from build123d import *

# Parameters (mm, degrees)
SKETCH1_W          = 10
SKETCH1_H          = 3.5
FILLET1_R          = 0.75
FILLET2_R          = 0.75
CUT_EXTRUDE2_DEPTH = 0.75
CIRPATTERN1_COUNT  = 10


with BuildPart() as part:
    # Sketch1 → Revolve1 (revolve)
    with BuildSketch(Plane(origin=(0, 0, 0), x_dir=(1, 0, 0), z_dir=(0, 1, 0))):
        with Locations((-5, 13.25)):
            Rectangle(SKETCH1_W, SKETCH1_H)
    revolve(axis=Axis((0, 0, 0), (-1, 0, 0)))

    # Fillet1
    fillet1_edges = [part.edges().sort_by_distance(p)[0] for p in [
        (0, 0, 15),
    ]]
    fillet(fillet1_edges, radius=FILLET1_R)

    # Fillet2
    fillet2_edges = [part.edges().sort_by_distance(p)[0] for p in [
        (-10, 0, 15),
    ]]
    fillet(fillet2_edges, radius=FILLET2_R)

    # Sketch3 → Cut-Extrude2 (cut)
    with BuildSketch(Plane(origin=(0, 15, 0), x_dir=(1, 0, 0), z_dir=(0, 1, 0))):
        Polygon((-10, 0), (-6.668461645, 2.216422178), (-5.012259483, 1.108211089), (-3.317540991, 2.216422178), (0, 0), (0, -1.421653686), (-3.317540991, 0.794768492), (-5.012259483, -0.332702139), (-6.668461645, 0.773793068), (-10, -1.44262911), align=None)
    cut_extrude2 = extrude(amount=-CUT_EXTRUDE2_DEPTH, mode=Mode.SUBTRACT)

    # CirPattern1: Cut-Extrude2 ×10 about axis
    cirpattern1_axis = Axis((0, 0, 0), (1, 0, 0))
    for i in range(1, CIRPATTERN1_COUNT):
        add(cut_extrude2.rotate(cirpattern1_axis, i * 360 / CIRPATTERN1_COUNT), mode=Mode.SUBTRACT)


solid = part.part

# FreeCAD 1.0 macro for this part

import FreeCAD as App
import Part
import Sketcher
from FreeCAD import Vector
Q = App.Units.Quantity


def edges_at(feature, points):
    """Names of the edges that pass closest to the given points."""
    edges = feature.Shape.Edges
    near = lambda p: min(range(len(edges)), key=lambda i: edges[i].distToShape(Part.Vertex(*p))[0])
    return sorted({f"Edge{near(p) + 1}" for p in points})


def add_polygon(sketch, points):
    """Adds a closed chain of lines whose ends are joined by coincident constraints."""
    first, n = sketch.GeometryCount, len(points)
    for a, b in zip(points, points[1:] + points[:1]):
        sketch.addGeometry(Part.LineSegment(App.Vector(*a, 0), App.Vector(*b, 0)), False)
    for i in range(n):
        sketch.addConstraint(Sketcher.Constraint("Coincident", first + i, 2, first + (i + 1) % n, 1))

doc = App.newDocument("Part")
body = doc.addObject("PartDesign::Body", "Body")

# Sketch on XZ plane
sketch1 = body.newObject("Sketcher::SketchObject", "Sketch")
sketch1.AttachmentSupport = (doc.getObject("XZ_Plane"), [""])
sketch1.MapMode = "FlatFace"
add_polygon(sketch1, [(-10, -15), (-10, -11.5), (0, -11.5), (0, -15)])  # lines 0-3
sketch1.addConstraint(Sketcher.Constraint("Vertical", 0))
sketch1.addConstraint(Sketcher.Constraint("Horizontal", 1))
sketch1.addConstraint(Sketcher.Constraint("Vertical", 2))
sketch1.addConstraint(Sketcher.Constraint("Horizontal", 3))
sketch1.addConstraint(Sketcher.Constraint("PointOnObject", 1, 2, -2))
sketch1.addConstraint(Sketcher.Constraint("DistanceX", 1, 1, 1, 2, Q("10 mm")))
sketch1.addConstraint(Sketcher.Constraint("DistanceY", 0, 1, 0, 2, Q("3.5 mm")))
sketch1.addConstraint(Sketcher.Constraint("DistanceY", 2, 2, -1, 1, Q("15 mm")))
revolution = body.newObject("PartDesign::Revolution", "Revolution")
revolution.Profile = sketch1
revolution.ReferenceAxis = (sketch1, ["H_Axis"])
revolution.Angle = 360
doc.recompute()

fillet = body.newObject("PartDesign::Fillet", "Fillet")
fillet.Base = (revolution, edges_at(revolution, [(0, 0, 15)]))
fillet.Radius = 0.75
doc.recompute()

fillet2 = body.newObject("PartDesign::Fillet", "Fillet001")
fillet2.Base = (fillet, edges_at(fillet, [(-10, 0, 15)]))
fillet2.Radius = 0.75

# Sketch on XZ plane
sketch2 = body.newObject("Sketcher::SketchObject", "Sketch001")
sketch2.AttachmentSupport = (doc.getObject("XZ_Plane"), [""])
sketch2.MapMode = "FlatFace"
sketch2.AttachmentOffset = App.Placement(Vector(0, 0, -15), App.Rotation())
add_polygon(sketch2, [(-6.7, -2.2), (-10, 0), (-10, 1.4), (-6.7, -0.8), (-5, 0.3), (-3.3, -0.8), (0, 1.4), (0, 0), (-3.3, -2.2), (-5, -1.1)])  # lines 0-9
sketch2.addConstraint(Sketcher.Constraint("Vertical", 1))
sketch2.addConstraint(Sketcher.Constraint("Vertical", 6))
sketch2.addConstraint(Sketcher.Constraint("Coincident", 6, 2, -1, 1))
sketch2.addConstraint(Sketcher.Constraint("PointOnObject", 0, 2, -1))
sketch2.addConstraint(Sketcher.Constraint("Parallel", 0, 2))
sketch2.addConstraint(Sketcher.Constraint("Parallel", 2, 4))
sketch2.addConstraint(Sketcher.Constraint("Parallel", 3, 5))
sketch2.addConstraint(Sketcher.Constraint("Parallel", 5, 7))
sketch2.addConstraint(Sketcher.Constraint("Horizontal", 7, 2, 9, 2))
sketch2.addConstraint(Sketcher.Constraint("Vertical", 4, 2, 7, 2))
sketch2.addConstraint(Sketcher.Constraint("Vertical", 3, 2, 8, 2))
sketch2.addConstraint(Sketcher.Constraint("Vertical", 2, 2, 9, 2))
sketch2.addConstraint(Sketcher.Constraint("DistanceX", 0, 2, -1, 1, Q("10 mm")))
sketch2.addConstraint(Sketcher.Constraint("Distance", 4, Q("2.0355 mm")))
sketch2.addConstraint(Sketcher.Constraint("DistanceY", 1, 1, 1, 2, Q("1.442629 mm")))
sketch2.addConstraint(Sketcher.Constraint("Distance", 0, Q("4.001459 mm")))
sketch2.addConstraint(Sketcher.Constraint("Distance", 9, Q("1.992771 mm")))
sketch2.addConstraint(Sketcher.Constraint("DistanceY", 6, 2, 6, 1, Q("1.421654 mm")))
sketch2.addConstraint(Sketcher.Constraint("DistanceX", 2, 2, -1, 1, Q("6.668462 mm")))
pocket1 = body.newObject("PartDesign::Pocket", "Pocket")
pocket1.Profile = sketch2
pocket1.Length = 0.75
pocket1.Reversed = True
doc.recompute()

polarpattern = body.newObject("PartDesign::PolarPattern", "PolarPattern")
polarpattern.Originals = [pocket1]
polarpattern.Axis = (doc.getObject("X_Axis"), [""])
polarpattern.Angle = 360
polarpattern.Occurrences = 10
body.Tip = polarpattern

doc.recompute()
